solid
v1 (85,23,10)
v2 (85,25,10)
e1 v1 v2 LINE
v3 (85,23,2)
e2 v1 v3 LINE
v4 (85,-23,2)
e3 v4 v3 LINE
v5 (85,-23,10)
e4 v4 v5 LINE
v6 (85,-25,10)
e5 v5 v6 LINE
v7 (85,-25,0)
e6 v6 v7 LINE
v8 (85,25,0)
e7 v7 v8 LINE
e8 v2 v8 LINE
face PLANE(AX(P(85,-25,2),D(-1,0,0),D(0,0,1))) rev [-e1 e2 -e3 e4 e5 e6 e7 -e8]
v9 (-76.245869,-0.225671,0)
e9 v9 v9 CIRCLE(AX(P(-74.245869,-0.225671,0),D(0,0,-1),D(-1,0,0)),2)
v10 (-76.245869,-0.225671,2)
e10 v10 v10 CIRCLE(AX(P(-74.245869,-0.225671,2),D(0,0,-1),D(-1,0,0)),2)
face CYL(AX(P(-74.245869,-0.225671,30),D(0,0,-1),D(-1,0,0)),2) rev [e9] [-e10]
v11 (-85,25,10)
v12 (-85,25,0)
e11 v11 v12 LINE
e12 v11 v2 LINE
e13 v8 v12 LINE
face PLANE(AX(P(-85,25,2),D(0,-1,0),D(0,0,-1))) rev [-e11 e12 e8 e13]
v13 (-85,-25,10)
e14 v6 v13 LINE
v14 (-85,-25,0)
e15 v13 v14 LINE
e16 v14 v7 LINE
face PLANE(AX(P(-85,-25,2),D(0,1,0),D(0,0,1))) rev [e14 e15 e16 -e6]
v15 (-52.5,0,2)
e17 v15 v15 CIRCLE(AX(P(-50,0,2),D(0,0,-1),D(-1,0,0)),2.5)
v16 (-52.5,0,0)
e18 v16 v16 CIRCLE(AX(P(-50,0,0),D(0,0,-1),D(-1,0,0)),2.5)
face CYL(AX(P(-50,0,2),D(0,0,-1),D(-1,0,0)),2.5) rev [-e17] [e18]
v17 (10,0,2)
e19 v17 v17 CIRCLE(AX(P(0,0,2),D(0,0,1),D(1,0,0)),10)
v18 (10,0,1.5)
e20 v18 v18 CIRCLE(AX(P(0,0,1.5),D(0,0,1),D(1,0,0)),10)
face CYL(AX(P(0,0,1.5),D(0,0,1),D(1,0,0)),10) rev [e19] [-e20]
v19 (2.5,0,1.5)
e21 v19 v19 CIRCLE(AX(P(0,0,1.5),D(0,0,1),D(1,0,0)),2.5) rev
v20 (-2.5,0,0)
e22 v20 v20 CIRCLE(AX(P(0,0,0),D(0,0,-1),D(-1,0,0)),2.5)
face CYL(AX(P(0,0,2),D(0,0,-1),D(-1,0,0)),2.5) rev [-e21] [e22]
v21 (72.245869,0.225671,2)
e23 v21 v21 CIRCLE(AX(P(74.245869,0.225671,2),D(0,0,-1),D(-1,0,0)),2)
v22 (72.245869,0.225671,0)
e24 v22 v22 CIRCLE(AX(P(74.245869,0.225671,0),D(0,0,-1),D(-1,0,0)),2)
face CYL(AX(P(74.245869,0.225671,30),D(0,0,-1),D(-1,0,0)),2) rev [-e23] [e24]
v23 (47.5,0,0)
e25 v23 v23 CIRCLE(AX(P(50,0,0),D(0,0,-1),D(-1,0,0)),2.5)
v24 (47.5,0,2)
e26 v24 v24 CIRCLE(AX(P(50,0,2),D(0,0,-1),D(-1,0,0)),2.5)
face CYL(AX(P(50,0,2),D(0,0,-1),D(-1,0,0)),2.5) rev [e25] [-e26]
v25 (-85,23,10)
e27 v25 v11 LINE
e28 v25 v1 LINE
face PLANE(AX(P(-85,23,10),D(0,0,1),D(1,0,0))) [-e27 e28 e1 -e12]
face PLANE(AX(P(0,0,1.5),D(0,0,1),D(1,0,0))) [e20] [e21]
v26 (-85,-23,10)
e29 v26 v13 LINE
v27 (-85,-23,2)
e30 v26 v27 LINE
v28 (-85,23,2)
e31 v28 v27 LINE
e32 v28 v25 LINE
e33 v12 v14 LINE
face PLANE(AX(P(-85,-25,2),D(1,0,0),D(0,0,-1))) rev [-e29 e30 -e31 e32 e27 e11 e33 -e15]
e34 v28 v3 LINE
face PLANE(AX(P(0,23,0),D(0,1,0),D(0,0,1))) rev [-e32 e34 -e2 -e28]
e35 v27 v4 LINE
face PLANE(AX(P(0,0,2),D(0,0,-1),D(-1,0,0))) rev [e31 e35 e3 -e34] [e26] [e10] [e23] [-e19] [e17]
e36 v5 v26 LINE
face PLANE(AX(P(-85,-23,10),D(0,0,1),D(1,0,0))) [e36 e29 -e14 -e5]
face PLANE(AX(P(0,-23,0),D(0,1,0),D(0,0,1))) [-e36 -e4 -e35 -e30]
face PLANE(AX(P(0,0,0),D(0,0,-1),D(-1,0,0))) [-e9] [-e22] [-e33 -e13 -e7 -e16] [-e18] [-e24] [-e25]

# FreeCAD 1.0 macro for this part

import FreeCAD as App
import Part
import Sketcher

V = App.Vector


def add_polygon(sketch, points):
    """Adds a closed chain of lines whose ends are joined by coincident constraints."""
    first, n = sketch.GeometryCount, len(points)
    for a, b in zip(points, points[1:] + points[:1]):
        sketch.addGeometry(Part.LineSegment(App.Vector(*a, 0), App.Vector(*b, 0)), False)
    for i in range(n):
        sketch.addConstraint(Sketcher.Constraint("Coincident", first + i, 2, first + (i + 1) % n, 1))

doc = App.newDocument("Part")
body = doc.addObject("PartDesign::Body", "Body")

# Sketch on XY plane
sketch1 = body.newObject("Sketcher::SketchObject", "Sketch")
sketch1.AttachmentSupport = (doc.getObject("XY_Plane"), [""])
sketch1.MapMode = "FlatFace"
add_polygon(sketch1, [(-85, 25), (-85, -25), (85, -25), (85, 25)])  # lines 0-3
sketch1.addConstraint([
    Sketcher.Constraint("Vertical", 0),
    Sketcher.Constraint("Horizontal", 1),
    Sketcher.Constraint("Vertical", 2),
    Sketcher.Constraint("Horizontal", 3),
    Sketcher.Constraint("Symmetric", 0, 2, 2, 2, -1, 1),
    Sketcher.Constraint("DistanceX", 1, 1, 1, 2, 170.0),
    Sketcher.Constraint("DistanceY", 0, 2, 0, 1, 50.0),
])
pad1 = body.newObject("PartDesign::Pad", "Pad")
pad1.Profile = sketch1
pad1.Length = 2

# Sketch on XZ plane
sketch2 = body.newObject("Sketcher::SketchObject", "Sketch001")
sketch2.AttachmentSupport = (doc.getObject("XZ_Plane"), [""])
sketch2.MapMode = "FlatFace"
sketch2.AttachmentOffset = App.Placement(V(0, 0, -25), App.Rotation())
add_polygon(sketch2, [(-85, 0), (-85, 10), (85, 10), (85, 0)])  # lines 0-3
sketch2.addConstraint([
    Sketcher.Constraint("Vertical", 0),
    Sketcher.Constraint("Horizontal", 1),
    Sketcher.Constraint("Vertical", 2),
    Sketcher.Constraint("Horizontal", 3),
    Sketcher.Constraint("Symmetric", 2, 2, 3, 2, -1, 1),
    Sketcher.Constraint("DistanceX", 1, 1, 1, 2, 170.0),
    Sketcher.Constraint("DistanceY", 0, 1, 0, 2, 10.0),
])
pad2 = body.newObject("PartDesign::Pad", "Pad001")
pad2.Profile = sketch2
pad2.Length = 2

# Sketch on XZ plane
sketch3 = body.newObject("Sketcher::SketchObject", "Sketch002")
sketch3.AttachmentSupport = (doc.getObject("XZ_Plane"), [""])
sketch3.MapMode = "FlatFace"
sketch3.AttachmentOffset = App.Placement(V(0, 0, 25), App.Rotation())
add_polygon(sketch3, [(-85, 10), (-85, 0), (85, 0), (85, 10)])  # lines 0-3
sketch3.addConstraint([
    Sketcher.Constraint("Vertical", 0),
    Sketcher.Constraint("Horizontal", 1),
    Sketcher.Constraint("Vertical", 2),
    Sketcher.Constraint("Horizontal", 3),
    Sketcher.Constraint("Symmetric", 0, 2, 1, 2, -1, 1),
    Sketcher.Constraint("DistanceX", 1, 1, 1, 2, 170.0),
    Sketcher.Constraint("DistanceY", 0, 2, 0, 1, 10.0),
])
pad3 = body.newObject("PartDesign::Pad", "Pad002")
pad3.Profile = sketch3
pad3.Length = 2
pad3.Reversed = True

# Sketch on XY plane
sketch4 = body.newObject("Sketcher::SketchObject", "Sketch003")
sketch4.AttachmentSupport = (doc.getObject("XY_Plane"), [""])
sketch4.MapMode = "FlatFace"
sketch4.addGeometry([
    Part.Circle(V(0, 0, 0), V(0, 0, 1), 2.5),
    Part.Circle(V(50, 0, 0), V(0, 0, 1), 2.5),
    Part.Circle(V(-50, 0, 0), V(0, 0, 1), 2.5),
], False)
sketch4.addConstraint([
    Sketcher.Constraint("Coincident", 0, 3, -1, 1),
    Sketcher.Constraint("Equal", 0, 1),
    Sketcher.Constraint("Equal", 1, 2),
    Sketcher.Constraint("Symmetric", 1, 3, 2, 3, -1, 1),
    Sketcher.Constraint("PointOnObject", 1, 3, -1),
    Sketcher.Constraint("Diameter", 0, 5.0),
    Sketcher.Constraint("DistanceX", -1, 1, 1, 3, 50.0),
])
pocket1 = body.newObject("PartDesign::Pocket", "Pocket")
pocket1.Profile = sketch4
pocket1.Length = 2
pocket1.Reversed = True

# Sketch on XY plane
sketch5 = body.newObject("Sketcher::SketchObject", "Sketch004")
sketch5.AttachmentSupport = (doc.getObject("XY_Plane"), [""])
sketch5.MapMode = "FlatFace"
sketch5.AttachmentOffset = App.Placement(V(0, 0, 2), App.Rotation())
sketch5.addGeometry(Part.Circle(V(0, 0, 0), V(0, 0, 1), 10), False)
sketch5.addConstraint([
    Sketcher.Constraint("Coincident", 0, 3, -1, 1),
    Sketcher.Constraint("Diameter", 0, 20.0),
])
pocket2 = body.newObject("PartDesign::Pocket", "Pocket001")
pocket2.Profile = sketch5
pocket2.Length = 0.5

# Sketch on XY plane
sketch6 = body.newObject("Sketcher::SketchObject", "Sketch005")
sketch6.AttachmentSupport = (doc.getObject("XY_Plane"), [""])
sketch6.MapMode = "FlatFace"
sketch6.addGeometry([
    Part.Circle(V(74.245869, 0.225671, 0), V(0, 0, 1), 2),
    Part.Circle(V(-74.245869, -0.225671, 0), V(0, 0, 1), 2),
], False)
sketch6.addConstraint([
    Sketcher.Constraint("Equal", 0, 1),
    Sketcher.Constraint("Symmetric", 0, 3, 1, 3, -1, 1),
    Sketcher.Constraint("Diameter", 0, 4.0),
    Sketcher.Constraint("DistanceX", -1, 1, 0, 3, 74.245869),
    Sketcher.Constraint("DistanceY", -1, 1, 0, 3, 0.225671),
])
pocket3 = body.newObject("PartDesign::Pocket", "Pocket002")
pocket3.Profile = sketch6
pocket3.Length = 30
pocket3.Reversed = True

doc.recompute()
